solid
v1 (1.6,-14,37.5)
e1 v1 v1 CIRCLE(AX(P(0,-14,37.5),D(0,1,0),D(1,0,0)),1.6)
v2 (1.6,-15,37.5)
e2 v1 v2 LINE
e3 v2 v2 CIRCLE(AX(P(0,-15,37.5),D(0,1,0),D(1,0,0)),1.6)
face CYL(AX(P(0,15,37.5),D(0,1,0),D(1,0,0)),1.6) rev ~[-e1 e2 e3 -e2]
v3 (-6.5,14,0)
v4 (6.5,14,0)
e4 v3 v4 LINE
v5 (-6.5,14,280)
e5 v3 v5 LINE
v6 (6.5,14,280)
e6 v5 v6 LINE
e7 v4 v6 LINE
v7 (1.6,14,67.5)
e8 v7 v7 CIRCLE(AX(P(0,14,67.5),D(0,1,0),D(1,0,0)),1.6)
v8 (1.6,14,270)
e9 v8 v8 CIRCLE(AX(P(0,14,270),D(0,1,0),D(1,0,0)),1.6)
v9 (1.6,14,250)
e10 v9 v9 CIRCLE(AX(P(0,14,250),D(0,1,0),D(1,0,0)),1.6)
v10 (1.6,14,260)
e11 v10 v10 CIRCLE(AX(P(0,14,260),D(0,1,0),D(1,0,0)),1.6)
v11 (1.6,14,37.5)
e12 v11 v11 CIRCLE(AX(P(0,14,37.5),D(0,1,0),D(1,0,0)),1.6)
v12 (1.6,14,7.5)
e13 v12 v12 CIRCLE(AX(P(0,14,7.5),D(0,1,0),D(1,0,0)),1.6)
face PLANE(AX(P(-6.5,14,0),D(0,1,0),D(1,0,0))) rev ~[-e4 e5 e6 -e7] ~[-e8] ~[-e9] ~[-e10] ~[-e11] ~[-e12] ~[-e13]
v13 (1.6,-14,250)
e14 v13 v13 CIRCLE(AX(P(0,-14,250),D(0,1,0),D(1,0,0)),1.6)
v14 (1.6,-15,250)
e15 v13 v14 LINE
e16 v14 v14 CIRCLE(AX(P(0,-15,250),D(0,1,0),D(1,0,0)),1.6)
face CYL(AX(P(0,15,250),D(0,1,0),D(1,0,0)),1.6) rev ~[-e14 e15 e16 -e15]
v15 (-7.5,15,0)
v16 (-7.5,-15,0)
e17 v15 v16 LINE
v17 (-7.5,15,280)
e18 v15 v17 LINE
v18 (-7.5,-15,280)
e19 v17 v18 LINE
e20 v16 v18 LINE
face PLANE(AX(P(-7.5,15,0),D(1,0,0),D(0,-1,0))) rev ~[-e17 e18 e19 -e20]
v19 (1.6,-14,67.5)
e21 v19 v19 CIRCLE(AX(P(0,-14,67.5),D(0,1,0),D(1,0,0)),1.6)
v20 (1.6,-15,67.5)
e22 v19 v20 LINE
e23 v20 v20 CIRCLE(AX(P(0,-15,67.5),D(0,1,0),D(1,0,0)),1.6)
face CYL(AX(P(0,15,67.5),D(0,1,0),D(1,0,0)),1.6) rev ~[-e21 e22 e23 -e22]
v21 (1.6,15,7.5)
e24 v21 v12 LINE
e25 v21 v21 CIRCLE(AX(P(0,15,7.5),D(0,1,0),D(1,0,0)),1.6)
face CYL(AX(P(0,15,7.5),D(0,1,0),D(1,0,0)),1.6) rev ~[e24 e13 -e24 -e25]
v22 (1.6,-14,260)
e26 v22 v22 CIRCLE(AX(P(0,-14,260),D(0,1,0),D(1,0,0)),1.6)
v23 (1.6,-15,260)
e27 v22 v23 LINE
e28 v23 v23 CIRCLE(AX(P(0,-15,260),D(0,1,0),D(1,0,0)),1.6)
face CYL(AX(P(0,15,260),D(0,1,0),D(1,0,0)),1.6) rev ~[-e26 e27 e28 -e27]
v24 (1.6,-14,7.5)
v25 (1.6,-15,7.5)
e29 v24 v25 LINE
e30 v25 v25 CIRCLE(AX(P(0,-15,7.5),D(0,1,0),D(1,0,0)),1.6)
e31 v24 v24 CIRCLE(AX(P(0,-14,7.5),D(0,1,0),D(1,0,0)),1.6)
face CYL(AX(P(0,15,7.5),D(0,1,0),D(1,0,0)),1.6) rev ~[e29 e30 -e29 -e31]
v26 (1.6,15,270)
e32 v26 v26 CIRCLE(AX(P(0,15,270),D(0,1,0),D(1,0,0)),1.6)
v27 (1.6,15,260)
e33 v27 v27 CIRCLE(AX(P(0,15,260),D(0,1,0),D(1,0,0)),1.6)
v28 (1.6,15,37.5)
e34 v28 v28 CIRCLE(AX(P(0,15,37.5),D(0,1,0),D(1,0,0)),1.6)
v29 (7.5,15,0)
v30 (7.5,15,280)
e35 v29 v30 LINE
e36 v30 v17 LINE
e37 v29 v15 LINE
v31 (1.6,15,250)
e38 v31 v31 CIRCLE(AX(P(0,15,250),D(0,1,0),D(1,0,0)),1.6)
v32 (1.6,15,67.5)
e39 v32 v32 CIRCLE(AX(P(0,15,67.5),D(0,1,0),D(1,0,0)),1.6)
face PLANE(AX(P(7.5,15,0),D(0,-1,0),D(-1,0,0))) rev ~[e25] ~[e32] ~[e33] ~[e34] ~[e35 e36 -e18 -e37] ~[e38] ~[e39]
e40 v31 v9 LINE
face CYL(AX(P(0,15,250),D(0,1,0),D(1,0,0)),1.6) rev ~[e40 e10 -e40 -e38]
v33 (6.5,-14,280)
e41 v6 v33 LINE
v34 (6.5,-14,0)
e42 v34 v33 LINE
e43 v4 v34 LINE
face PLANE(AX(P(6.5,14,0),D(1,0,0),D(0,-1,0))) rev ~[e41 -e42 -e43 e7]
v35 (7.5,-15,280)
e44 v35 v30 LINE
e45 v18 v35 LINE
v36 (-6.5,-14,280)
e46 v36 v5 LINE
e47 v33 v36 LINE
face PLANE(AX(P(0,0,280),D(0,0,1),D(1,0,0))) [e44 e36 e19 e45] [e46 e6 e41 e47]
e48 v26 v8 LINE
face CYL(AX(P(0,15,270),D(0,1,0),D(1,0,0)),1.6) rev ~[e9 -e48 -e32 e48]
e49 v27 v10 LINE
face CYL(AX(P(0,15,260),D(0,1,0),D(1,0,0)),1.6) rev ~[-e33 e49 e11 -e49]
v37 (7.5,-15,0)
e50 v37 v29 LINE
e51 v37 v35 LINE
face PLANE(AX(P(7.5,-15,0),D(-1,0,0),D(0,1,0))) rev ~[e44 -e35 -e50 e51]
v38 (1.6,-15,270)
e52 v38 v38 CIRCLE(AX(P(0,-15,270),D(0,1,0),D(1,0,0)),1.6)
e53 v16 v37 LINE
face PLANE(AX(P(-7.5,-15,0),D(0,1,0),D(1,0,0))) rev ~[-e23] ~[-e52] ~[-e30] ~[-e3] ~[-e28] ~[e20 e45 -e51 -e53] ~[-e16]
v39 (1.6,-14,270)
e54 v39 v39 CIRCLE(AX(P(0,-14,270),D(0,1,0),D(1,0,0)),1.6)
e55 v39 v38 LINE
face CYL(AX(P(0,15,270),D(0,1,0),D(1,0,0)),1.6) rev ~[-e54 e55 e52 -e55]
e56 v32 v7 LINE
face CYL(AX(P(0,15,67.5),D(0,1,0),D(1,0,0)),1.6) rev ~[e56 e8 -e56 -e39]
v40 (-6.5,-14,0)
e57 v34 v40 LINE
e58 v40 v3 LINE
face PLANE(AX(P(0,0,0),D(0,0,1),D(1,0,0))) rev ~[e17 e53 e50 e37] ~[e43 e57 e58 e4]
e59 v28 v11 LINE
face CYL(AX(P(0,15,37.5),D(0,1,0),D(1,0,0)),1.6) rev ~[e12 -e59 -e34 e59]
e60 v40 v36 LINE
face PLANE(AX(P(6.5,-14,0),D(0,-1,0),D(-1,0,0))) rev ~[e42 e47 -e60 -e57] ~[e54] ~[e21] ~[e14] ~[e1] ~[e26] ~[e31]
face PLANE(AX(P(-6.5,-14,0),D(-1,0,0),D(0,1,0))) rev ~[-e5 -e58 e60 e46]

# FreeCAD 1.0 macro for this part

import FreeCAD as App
import Part
import Sketcher
Q = App.Units.Quantity

doc = App.newDocument("Part")
body = doc.addObject("PartDesign::Body", "Body")

# Sketch on XY plane
sketch1 = body.newObject("Sketcher::SketchObject", "Sketch")
sketch1.AttachmentSupport = (doc.getObject("XY_Plane"), [""])
sketch1.MapMode = "FlatFace"
sketch1.addGeometry(Part.LineSegment(App.Vector(8, -15, 0), App.Vector(8, 15, 0)), False)
sketch1.addGeometry(Part.LineSegment(App.Vector(8, 15, 0), App.Vector(-8, 15, 0)), False)
sketch1.addGeometry(Part.LineSegment(App.Vector(-8, 15, 0), App.Vector(-8, -15, 0)), False)
sketch1.addGeometry(Part.LineSegment(App.Vector(-8, -15, 0), App.Vector(8, -15, 0)), False)
sketch1.addGeometry(Part.LineSegment(App.Vector(-6, -14, 0), App.Vector(-6, 14, 0)), False)
sketch1.addGeometry(Part.LineSegment(App.Vector(-6, 14, 0), App.Vector(6, 14, 0)), False)
sketch1.addGeometry(Part.LineSegment(App.Vector(6, 14, 0), App.Vector(6, -14, 0)), False)
sketch1.addGeometry(Part.LineSegment(App.Vector(6, -14, 0), App.Vector(-6, -14, 0)), False)
sketch1.addConstraint(Sketcher.Constraint("Coincident", 0, 2, 1, 1))
sketch1.addConstraint(Sketcher.Constraint("Coincident", 1, 2, 2, 1))
sketch1.addConstraint(Sketcher.Constraint("Coincident", 2, 2, 3, 1))
sketch1.addConstraint(Sketcher.Constraint("Coincident", 3, 2, 0, 1))
sketch1.addConstraint(Sketcher.Constraint("Coincident", 4, 2, 5, 1))
sketch1.addConstraint(Sketcher.Constraint("Coincident", 5, 2, 6, 1))
sketch1.addConstraint(Sketcher.Constraint("Coincident", 6, 2, 7, 1))
sketch1.addConstraint(Sketcher.Constraint("Coincident", 7, 2, 4, 1))
sketch1.addConstraint(Sketcher.Constraint("Vertical", 0))
sketch1.addConstraint(Sketcher.Constraint("Horizontal", 1))
sketch1.addConstraint(Sketcher.Constraint("Vertical", 2))
sketch1.addConstraint(Sketcher.Constraint("Horizontal", 3))
sketch1.addConstraint(Sketcher.Constraint("Vertical", 4))
sketch1.addConstraint(Sketcher.Constraint("Horizontal", 5))
sketch1.addConstraint(Sketcher.Constraint("Vertical", 6))
sketch1.addConstraint(Sketcher.Constraint("Horizontal", 7))
sketch1.addConstraint(Sketcher.Constraint("Symmetric", 0, 2, 2, 2, -1, 1))
sketch1.addConstraint(Sketcher.Constraint("Symmetric", 4, 2, 6, 2, -1, 1))
sketch1.addConstraint(Sketcher.Constraint("DistanceX", 1, 2, 1, 1, Q("15 mm")))
sketch1.addConstraint(Sketcher.Constraint("DistanceY", 0, 1, 0, 2, Q("30 mm")))
sketch1.addConstraint(Sketcher.Constraint("DistanceX", 1, 2, 4, 2, Q("1 mm")))
sketch1.addConstraint(Sketcher.Constraint("DistanceY", 4, 2, 1, 2, Q("1 mm")))
pad1 = body.newObject("PartDesign::Pad", "Pad")
pad1.Profile = sketch1
pad1.Length = 280

# Sketch on XZ plane
sketch2 = body.newObject("Sketcher::SketchObject", "Sketch001")
sketch2.AttachmentSupport = (doc.getObject("XZ_Plane"), [""])
sketch2.MapMode = "FlatFace"
sketch2.AttachmentOffset = App.Placement(App.Vector(0, 0, -15), App.Rotation())
sketch2.addGeometry(Part.Circle(App.Vector(0, 7.5, 0), App.Vector(0, 0, 1), 1.6), False)
sketch2.addGeometry(Part.Circle(App.Vector(0, 37.5, 0), App.Vector(0, 0, 1), 1.6), False)
sketch2.addGeometry(Part.Circle(App.Vector(0, 67.5, 0), App.Vector(0, 0, 1), 1.6), False)
sketch2.addGeometry(Part.Circle(App.Vector(0, 270, 0), App.Vector(0, 0, 1), 1.6), False)
sketch2.addGeometry(Part.Circle(App.Vector(0, 260, 0), App.Vector(0, 0, 1), 1.6), False)
sketch2.addGeometry(Part.Circle(App.Vector(0, 250, 0), App.Vector(0, 0, 1), 1.6), False)
sketch2.addConstraint(Sketcher.Constraint("Equal", 0, 1))
sketch2.addConstraint(Sketcher.Constraint("Equal", 1, 2))
sketch2.addConstraint(Sketcher.Constraint("Equal", 2, 3))
sketch2.addConstraint(Sketcher.Constraint("Equal", 3, 4))
sketch2.addConstraint(Sketcher.Constraint("Equal", 4, 5))
sketch2.addConstraint(Sketcher.Constraint("PointOnObject", 0, 3, -2))
sketch2.addConstraint(Sketcher.Constraint("PointOnObject", 1, 3, -2))
sketch2.addConstraint(Sketcher.Constraint("PointOnObject", 2, 3, -2))
sketch2.addConstraint(Sketcher.Constraint("PointOnObject", 3, 3, -2))
sketch2.addConstraint(Sketcher.Constraint("PointOnObject", 4, 3, -2))
sketch2.addConstraint(Sketcher.Constraint("PointOnObject", 5, 3, -2))
sketch2.addConstraint(Sketcher.Constraint("Diameter", 0, Q("3.2 mm")))
sketch2.addConstraint(Sketcher.Constraint("DistanceY", 0, 3, 1, 3, Q("30 mm")))
sketch2.addConstraint(Sketcher.Constraint("DistanceY", 1, 3, 2, 3, Q("30 mm")))
sketch2.addConstraint(Sketcher.Constraint("DistanceY", 4, 3, 3, 3, Q("10 mm")))
sketch2.addConstraint(Sketcher.Constraint("DistanceY", 5, 3, 4, 3, Q("10 mm")))
sketch2.addConstraint(Sketcher.Constraint("DistanceY", -1, 1, 0, 3, Q("7.5 mm")))
sketch2.addConstraint(Sketcher.Constraint("DistanceY", -1, 1, 3, 3, Q("270 mm")))
pocket1 = body.newObject("PartDesign::Pocket", "Pocket")
pocket1.Profile = sketch2
pocket1.Type = "ThroughAll"
pocket1.Reversed = True

doc.recompute()
